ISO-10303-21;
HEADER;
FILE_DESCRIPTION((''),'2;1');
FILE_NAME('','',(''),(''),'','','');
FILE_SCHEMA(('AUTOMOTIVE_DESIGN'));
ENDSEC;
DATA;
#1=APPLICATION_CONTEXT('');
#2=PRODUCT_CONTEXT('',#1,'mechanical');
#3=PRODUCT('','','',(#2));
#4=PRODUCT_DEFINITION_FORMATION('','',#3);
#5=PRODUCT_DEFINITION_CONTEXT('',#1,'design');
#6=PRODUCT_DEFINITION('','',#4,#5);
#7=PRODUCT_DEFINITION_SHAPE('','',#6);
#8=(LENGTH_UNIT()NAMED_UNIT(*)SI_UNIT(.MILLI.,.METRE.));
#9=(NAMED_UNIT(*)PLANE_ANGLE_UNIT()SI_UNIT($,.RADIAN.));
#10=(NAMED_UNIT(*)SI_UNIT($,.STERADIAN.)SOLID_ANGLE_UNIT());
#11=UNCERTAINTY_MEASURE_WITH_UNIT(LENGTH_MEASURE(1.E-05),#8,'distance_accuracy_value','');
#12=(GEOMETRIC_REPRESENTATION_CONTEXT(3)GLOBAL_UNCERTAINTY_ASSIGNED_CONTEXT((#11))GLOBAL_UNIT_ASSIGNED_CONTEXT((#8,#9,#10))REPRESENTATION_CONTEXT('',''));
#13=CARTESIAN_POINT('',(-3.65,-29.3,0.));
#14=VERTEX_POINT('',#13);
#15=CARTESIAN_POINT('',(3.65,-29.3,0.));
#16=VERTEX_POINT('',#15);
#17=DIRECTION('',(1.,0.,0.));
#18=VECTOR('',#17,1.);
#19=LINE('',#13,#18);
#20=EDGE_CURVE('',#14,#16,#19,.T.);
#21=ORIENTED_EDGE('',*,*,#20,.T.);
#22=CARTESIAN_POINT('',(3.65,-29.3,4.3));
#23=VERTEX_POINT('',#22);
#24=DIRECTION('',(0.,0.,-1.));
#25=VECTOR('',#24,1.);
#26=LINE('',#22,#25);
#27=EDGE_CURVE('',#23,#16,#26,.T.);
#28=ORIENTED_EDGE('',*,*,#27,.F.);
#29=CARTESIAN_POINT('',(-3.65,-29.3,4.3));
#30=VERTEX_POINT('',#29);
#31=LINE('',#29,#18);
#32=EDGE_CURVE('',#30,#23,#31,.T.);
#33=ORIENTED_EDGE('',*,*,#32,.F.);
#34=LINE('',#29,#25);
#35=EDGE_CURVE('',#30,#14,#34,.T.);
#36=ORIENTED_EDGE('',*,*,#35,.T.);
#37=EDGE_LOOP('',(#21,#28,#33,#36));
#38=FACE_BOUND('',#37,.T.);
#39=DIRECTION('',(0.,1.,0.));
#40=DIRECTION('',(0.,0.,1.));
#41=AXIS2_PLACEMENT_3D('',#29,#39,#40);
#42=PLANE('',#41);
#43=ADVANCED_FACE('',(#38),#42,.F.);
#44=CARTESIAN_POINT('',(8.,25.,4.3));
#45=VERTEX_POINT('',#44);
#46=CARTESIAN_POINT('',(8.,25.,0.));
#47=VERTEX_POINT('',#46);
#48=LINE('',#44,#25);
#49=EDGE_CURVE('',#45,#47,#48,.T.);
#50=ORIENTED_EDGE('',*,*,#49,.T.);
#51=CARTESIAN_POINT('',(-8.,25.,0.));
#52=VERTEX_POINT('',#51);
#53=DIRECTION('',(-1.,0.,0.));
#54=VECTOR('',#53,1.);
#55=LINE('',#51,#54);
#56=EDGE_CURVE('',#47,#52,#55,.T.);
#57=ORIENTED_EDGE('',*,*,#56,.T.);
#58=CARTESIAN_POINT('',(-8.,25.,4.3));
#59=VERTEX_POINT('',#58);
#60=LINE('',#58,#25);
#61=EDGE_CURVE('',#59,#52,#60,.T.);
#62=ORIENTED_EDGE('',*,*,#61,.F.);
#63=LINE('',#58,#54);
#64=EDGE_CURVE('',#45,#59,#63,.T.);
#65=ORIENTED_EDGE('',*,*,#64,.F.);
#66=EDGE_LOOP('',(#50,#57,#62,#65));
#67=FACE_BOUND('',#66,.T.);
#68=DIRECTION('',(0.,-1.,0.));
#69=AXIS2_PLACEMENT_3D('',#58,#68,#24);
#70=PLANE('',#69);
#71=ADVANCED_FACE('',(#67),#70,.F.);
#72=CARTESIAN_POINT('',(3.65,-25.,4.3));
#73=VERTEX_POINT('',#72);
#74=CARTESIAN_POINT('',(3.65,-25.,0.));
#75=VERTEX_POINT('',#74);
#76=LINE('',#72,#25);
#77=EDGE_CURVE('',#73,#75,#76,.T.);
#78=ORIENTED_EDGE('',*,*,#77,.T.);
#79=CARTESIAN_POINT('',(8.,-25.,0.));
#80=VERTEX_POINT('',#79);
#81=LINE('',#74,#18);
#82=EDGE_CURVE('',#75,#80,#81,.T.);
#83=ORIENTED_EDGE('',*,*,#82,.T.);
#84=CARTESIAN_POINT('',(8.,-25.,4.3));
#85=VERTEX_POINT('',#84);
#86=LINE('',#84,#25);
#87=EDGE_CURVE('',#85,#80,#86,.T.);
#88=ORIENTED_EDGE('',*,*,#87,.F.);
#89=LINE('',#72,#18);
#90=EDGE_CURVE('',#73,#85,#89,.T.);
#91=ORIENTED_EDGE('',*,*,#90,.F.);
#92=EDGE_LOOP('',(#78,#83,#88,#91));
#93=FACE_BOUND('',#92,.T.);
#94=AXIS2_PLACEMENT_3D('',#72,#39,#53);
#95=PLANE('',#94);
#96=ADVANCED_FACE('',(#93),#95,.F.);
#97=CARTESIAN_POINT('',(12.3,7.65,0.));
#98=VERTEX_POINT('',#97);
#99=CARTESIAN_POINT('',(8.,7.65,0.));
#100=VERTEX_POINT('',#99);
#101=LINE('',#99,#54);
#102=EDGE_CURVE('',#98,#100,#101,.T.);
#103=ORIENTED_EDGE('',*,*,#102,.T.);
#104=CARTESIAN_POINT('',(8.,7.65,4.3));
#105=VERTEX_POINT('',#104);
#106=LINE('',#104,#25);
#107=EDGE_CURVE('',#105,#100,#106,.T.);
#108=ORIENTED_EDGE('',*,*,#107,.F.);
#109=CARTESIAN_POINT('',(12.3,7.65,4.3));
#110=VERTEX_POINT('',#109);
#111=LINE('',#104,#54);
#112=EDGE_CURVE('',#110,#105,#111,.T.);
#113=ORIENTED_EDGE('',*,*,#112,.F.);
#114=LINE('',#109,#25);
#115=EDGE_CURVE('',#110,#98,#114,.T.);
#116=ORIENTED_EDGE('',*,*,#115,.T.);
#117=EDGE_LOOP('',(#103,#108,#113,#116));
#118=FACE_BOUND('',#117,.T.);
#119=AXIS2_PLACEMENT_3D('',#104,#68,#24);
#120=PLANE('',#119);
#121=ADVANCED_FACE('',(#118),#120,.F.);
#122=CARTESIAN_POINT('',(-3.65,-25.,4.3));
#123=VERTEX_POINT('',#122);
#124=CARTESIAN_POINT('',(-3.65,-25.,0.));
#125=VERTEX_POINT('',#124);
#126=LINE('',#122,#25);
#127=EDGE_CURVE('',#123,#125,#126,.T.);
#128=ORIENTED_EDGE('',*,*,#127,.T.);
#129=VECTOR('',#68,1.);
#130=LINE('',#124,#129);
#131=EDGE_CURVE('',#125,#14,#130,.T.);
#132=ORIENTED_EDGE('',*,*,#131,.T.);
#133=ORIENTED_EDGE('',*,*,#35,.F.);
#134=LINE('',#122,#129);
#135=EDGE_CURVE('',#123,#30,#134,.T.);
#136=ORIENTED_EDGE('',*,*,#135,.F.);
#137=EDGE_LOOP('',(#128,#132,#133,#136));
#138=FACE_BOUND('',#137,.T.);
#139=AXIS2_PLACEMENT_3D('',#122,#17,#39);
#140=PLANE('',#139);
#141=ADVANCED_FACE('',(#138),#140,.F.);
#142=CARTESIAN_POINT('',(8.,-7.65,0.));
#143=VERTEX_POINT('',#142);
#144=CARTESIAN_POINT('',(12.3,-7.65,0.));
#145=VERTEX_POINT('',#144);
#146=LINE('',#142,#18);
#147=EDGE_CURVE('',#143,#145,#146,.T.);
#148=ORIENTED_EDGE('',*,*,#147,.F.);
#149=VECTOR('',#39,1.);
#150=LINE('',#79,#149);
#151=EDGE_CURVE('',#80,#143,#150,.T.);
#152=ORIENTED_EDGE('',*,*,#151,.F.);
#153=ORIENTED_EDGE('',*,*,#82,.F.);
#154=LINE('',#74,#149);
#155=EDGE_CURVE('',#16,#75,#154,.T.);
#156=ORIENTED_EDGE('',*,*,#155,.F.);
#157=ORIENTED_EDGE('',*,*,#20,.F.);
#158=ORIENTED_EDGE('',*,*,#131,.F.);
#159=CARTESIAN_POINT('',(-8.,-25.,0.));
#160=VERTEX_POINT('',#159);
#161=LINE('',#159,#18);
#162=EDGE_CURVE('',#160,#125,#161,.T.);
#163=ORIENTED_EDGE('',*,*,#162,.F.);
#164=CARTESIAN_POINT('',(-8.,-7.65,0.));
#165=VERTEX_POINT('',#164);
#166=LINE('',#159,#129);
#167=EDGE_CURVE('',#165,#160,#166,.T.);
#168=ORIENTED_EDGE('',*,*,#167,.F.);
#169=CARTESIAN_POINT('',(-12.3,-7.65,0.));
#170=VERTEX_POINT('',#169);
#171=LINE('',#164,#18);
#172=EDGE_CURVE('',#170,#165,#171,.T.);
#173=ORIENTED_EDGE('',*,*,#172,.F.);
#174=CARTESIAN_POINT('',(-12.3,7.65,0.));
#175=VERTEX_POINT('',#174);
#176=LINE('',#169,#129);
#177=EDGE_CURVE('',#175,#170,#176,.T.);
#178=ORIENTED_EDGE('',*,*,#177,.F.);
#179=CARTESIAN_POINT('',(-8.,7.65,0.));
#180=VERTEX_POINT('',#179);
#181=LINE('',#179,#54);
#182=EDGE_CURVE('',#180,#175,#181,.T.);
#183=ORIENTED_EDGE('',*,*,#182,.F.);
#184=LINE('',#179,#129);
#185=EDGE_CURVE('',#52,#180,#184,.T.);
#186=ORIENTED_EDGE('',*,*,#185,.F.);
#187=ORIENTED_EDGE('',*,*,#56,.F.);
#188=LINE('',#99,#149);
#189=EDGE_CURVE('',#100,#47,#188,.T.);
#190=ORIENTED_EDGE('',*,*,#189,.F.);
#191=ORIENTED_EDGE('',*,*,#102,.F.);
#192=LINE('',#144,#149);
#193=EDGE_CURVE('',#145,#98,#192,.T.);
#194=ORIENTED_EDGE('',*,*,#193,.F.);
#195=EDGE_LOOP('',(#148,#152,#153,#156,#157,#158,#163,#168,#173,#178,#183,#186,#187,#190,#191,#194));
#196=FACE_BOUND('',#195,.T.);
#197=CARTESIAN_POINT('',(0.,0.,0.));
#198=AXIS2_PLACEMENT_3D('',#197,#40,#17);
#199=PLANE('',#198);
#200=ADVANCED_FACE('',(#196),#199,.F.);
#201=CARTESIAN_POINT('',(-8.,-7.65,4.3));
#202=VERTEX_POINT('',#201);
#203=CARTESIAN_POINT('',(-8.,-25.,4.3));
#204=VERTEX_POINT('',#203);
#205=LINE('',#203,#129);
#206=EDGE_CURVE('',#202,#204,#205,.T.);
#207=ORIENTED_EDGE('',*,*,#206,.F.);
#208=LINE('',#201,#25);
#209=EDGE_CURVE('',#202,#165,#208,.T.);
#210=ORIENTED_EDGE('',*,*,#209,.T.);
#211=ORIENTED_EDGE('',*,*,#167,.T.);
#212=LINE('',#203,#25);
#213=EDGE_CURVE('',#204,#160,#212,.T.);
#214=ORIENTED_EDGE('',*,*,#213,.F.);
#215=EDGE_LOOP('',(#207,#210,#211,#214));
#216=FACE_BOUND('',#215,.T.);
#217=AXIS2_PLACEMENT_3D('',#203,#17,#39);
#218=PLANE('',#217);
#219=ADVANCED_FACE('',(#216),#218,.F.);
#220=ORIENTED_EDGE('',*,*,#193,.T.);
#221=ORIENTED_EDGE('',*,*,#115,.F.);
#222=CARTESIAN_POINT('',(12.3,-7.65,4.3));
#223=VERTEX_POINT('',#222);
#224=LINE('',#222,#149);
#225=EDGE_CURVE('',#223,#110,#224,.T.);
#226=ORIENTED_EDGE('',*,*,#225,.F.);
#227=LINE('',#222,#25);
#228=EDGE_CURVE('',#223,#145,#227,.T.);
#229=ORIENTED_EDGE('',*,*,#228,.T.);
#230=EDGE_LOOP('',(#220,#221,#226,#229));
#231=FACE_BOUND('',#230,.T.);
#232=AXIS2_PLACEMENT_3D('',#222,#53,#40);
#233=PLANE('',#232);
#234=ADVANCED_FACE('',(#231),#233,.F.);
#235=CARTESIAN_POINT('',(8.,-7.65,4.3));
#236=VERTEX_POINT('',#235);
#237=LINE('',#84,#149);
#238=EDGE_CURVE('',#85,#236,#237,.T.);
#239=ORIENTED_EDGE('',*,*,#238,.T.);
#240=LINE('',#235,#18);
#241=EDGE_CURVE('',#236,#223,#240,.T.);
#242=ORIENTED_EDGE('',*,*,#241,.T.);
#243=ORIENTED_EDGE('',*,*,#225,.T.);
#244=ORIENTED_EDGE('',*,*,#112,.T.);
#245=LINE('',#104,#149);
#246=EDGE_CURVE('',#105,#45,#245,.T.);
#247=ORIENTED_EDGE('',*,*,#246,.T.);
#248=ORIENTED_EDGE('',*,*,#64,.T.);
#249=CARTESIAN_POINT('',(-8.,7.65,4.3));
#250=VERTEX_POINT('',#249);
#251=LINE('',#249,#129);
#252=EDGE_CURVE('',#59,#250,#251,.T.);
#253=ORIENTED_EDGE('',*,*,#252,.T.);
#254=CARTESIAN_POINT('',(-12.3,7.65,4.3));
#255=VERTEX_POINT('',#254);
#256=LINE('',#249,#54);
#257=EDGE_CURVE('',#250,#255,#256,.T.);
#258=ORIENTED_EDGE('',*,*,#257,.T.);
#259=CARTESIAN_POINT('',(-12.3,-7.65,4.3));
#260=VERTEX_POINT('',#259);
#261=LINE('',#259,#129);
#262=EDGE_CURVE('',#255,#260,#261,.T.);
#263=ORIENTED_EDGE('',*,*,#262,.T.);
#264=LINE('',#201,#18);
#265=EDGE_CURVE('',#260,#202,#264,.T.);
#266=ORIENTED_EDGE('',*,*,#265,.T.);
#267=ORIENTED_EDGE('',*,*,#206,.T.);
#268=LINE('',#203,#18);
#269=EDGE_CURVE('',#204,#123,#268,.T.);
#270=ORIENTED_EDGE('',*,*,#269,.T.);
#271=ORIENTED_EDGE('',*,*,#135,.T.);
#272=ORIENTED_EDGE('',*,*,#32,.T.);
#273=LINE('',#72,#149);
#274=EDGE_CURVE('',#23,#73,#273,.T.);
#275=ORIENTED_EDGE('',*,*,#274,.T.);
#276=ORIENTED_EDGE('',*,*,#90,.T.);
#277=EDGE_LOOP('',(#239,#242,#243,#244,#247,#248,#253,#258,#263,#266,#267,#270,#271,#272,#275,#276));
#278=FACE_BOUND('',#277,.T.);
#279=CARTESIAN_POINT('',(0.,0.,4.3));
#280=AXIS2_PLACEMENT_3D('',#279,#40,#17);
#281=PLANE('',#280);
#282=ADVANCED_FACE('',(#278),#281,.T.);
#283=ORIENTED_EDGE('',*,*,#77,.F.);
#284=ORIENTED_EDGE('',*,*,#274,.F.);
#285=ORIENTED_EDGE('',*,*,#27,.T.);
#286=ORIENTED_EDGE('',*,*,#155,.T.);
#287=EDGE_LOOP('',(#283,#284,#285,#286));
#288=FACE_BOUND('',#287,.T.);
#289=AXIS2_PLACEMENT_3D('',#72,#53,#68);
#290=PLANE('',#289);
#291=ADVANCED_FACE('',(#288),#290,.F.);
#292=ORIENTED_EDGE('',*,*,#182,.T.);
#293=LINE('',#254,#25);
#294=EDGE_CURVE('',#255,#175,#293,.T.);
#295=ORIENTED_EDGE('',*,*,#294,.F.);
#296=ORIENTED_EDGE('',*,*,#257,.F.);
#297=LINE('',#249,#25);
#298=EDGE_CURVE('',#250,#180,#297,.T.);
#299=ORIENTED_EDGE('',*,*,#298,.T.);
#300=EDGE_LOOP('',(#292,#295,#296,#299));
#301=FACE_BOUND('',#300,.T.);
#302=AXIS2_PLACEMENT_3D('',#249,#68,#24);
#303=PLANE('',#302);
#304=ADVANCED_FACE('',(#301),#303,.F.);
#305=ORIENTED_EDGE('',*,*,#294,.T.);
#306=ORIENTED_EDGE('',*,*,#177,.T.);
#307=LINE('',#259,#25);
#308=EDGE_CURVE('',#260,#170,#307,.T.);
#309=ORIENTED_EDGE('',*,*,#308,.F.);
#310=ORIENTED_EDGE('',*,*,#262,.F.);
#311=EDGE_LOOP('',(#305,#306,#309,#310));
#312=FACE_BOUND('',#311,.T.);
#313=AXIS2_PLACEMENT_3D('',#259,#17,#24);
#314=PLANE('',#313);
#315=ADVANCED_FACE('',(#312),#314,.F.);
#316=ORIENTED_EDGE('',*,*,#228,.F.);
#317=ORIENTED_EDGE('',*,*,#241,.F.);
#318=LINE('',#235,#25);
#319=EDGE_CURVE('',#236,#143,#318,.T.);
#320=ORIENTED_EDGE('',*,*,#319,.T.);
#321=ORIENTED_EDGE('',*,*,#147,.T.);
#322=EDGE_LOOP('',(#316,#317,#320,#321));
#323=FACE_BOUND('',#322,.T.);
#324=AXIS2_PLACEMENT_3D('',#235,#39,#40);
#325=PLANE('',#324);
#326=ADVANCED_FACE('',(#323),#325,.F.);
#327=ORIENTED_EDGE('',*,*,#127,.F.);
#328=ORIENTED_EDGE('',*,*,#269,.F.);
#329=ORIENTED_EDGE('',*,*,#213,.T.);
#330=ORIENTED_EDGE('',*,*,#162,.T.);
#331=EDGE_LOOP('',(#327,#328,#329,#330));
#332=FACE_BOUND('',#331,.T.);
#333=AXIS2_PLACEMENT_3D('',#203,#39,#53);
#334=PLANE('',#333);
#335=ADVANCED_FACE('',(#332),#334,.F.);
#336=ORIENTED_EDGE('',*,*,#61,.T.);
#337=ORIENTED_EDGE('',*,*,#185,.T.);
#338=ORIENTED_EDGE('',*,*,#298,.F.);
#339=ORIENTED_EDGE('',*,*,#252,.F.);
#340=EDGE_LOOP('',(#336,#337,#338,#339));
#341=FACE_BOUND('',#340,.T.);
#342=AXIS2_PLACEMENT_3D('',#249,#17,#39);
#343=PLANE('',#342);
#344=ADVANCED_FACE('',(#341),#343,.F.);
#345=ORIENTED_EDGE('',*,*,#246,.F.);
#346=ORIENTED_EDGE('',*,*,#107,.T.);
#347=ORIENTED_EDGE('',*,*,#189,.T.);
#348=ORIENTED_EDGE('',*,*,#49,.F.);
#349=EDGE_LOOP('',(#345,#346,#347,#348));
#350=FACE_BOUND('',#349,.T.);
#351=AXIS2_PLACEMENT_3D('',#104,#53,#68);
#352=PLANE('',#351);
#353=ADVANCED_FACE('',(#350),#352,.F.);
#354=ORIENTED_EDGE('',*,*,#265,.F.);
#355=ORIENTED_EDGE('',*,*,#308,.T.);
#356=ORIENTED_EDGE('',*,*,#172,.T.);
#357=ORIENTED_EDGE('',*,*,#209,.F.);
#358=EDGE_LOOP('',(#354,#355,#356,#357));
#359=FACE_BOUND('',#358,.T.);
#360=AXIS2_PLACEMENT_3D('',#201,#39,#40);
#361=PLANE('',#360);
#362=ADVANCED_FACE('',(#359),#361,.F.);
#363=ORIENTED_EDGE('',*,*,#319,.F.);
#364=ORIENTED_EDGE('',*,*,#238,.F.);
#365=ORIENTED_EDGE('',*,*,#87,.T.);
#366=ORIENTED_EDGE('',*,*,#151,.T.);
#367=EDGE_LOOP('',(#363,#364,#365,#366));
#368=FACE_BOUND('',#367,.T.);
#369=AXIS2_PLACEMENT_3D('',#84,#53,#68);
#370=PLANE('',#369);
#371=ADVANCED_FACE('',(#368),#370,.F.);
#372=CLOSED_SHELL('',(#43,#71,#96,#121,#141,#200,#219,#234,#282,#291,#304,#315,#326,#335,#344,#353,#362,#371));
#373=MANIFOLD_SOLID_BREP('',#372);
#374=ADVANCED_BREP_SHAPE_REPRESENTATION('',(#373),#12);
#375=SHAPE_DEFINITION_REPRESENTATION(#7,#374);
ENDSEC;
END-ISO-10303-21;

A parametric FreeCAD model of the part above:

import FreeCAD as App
import Part
import Sketcher


def add_polygon(sketch, points):
    """Adds a closed chain of lines whose ends are joined by coincident constraints."""
    first, n = sketch.GeometryCount, len(points)
    for a, b in zip(points, points[1:] + points[:1]):
        sketch.addGeometry(Part.LineSegment(App.Vector(*a, 0), App.Vector(*b, 0)), False)
    for i in range(n):
        sketch.addConstraint(Sketcher.Constraint("Coincident", first + i, 2, first + (i + 1) % n, 1))

doc = App.newDocument("Part")
params = doc.addObject("Spreadsheet::Sheet", "Params")
for row, (alias, value) in enumerate([
    ("sketch1_width", "16 mm"),
    ("sketch1_width2", "4.3 mm"),
    ("sketch1_width3", "7.3 mm"),
    ("sketch1_height", "15.3 mm"),
    ("pad1_length", "4.3 mm"),
], start=1):
    params.set(f"A{row}", alias)
    params.set(f"B{row}", "=" + value)
    params.setAlias(f"B{row}", alias)

body = doc.addObject("PartDesign::Body", "Body")

# Sketch on XY plane
sketch1 = body.newObject("Sketcher::SketchObject", "Sketch")
sketch1.AttachmentSupport = (doc.getObject("XY_Plane"), [""])
sketch1.MapMode = "FlatFace"
add_polygon(sketch1, [(8, 7.7), (8, 25), (-8, 25), (-8, 7.7), (-12.3, 7.7), (-12.3, -7.7), (-8, -7.7), (-8, -25), (-3.6, -25), (-3.6, -29.3), (3.6, -29.3), (3.6, -25), (8, -25), (8, -7.7), (12.3, -7.7), (12.3, 7.7)])  # lines 0-15
sketch1.addConstraint([
    Sketcher.Constraint("Vertical", 0),
    Sketcher.Constraint("Horizontal", 1),
    Sketcher.Constraint("Vertical", 2),
    Sketcher.Constraint("Horizontal", 3),
    Sketcher.Constraint("Vertical", 4),
    Sketcher.Constraint("Horizontal", 5),
    Sketcher.Constraint("Vertical", 6),
    Sketcher.Constraint("Horizontal", 7),
    Sketcher.Constraint("Vertical", 8),
    Sketcher.Constraint("Horizontal", 9),
    Sketcher.Constraint("Vertical", 10),
    Sketcher.Constraint("Horizontal", 11),
    Sketcher.Constraint("Vertical", 12),
    Sketcher.Constraint("Horizontal", 13),
    Sketcher.Constraint("Vertical", 14),
    Sketcher.Constraint("Horizontal", 15),
    Sketcher.Constraint("Symmetric", 0, 2, 6, 2, -1, 1),
    Sketcher.Constraint("Symmetric", 1, 2, 11, 2, -1, 1),
    Sketcher.Constraint("Symmetric", 3, 2, 13, 2, -1, 1),
    Sketcher.Constraint("Symmetric", 5, 2, 12, 2, -2),
    Sketcher.Constraint("Horizontal", 3, 2, 14, 2),
    Sketcher.Constraint("Equal", 7, 11),
    Sketcher.Constraint("Equal", 15, 8),
    Sketcher.Constraint("DistanceX", 1, 2, 1, 1, 16.0),
    Sketcher.Constraint("DistanceX", 3, 2, 3, 1, 4.3),
    Sketcher.Constraint("DistanceX", 9, 1, 9, 2, 7.3),
    Sketcher.Constraint("DistanceY", 4, 2, 4, 1, 15.3),
    Sketcher.Constraint("DistanceY", -1, 1, 0, 2, 25.0),
])
sketch1.setExpression("Constraints[39]", "Params.sketch1_width")
sketch1.setExpression("Constraints[40]", "Params.sketch1_width2")
sketch1.setExpression("Constraints[41]", "Params.sketch1_width3")
sketch1.setExpression("Constraints[42]", "Params.sketch1_height")
pad1 = body.newObject("PartDesign::Pad", "Pad")
pad1.Profile = sketch1
pad1.setExpression("Length", "Params.pad1_length")

doc.recompute()
